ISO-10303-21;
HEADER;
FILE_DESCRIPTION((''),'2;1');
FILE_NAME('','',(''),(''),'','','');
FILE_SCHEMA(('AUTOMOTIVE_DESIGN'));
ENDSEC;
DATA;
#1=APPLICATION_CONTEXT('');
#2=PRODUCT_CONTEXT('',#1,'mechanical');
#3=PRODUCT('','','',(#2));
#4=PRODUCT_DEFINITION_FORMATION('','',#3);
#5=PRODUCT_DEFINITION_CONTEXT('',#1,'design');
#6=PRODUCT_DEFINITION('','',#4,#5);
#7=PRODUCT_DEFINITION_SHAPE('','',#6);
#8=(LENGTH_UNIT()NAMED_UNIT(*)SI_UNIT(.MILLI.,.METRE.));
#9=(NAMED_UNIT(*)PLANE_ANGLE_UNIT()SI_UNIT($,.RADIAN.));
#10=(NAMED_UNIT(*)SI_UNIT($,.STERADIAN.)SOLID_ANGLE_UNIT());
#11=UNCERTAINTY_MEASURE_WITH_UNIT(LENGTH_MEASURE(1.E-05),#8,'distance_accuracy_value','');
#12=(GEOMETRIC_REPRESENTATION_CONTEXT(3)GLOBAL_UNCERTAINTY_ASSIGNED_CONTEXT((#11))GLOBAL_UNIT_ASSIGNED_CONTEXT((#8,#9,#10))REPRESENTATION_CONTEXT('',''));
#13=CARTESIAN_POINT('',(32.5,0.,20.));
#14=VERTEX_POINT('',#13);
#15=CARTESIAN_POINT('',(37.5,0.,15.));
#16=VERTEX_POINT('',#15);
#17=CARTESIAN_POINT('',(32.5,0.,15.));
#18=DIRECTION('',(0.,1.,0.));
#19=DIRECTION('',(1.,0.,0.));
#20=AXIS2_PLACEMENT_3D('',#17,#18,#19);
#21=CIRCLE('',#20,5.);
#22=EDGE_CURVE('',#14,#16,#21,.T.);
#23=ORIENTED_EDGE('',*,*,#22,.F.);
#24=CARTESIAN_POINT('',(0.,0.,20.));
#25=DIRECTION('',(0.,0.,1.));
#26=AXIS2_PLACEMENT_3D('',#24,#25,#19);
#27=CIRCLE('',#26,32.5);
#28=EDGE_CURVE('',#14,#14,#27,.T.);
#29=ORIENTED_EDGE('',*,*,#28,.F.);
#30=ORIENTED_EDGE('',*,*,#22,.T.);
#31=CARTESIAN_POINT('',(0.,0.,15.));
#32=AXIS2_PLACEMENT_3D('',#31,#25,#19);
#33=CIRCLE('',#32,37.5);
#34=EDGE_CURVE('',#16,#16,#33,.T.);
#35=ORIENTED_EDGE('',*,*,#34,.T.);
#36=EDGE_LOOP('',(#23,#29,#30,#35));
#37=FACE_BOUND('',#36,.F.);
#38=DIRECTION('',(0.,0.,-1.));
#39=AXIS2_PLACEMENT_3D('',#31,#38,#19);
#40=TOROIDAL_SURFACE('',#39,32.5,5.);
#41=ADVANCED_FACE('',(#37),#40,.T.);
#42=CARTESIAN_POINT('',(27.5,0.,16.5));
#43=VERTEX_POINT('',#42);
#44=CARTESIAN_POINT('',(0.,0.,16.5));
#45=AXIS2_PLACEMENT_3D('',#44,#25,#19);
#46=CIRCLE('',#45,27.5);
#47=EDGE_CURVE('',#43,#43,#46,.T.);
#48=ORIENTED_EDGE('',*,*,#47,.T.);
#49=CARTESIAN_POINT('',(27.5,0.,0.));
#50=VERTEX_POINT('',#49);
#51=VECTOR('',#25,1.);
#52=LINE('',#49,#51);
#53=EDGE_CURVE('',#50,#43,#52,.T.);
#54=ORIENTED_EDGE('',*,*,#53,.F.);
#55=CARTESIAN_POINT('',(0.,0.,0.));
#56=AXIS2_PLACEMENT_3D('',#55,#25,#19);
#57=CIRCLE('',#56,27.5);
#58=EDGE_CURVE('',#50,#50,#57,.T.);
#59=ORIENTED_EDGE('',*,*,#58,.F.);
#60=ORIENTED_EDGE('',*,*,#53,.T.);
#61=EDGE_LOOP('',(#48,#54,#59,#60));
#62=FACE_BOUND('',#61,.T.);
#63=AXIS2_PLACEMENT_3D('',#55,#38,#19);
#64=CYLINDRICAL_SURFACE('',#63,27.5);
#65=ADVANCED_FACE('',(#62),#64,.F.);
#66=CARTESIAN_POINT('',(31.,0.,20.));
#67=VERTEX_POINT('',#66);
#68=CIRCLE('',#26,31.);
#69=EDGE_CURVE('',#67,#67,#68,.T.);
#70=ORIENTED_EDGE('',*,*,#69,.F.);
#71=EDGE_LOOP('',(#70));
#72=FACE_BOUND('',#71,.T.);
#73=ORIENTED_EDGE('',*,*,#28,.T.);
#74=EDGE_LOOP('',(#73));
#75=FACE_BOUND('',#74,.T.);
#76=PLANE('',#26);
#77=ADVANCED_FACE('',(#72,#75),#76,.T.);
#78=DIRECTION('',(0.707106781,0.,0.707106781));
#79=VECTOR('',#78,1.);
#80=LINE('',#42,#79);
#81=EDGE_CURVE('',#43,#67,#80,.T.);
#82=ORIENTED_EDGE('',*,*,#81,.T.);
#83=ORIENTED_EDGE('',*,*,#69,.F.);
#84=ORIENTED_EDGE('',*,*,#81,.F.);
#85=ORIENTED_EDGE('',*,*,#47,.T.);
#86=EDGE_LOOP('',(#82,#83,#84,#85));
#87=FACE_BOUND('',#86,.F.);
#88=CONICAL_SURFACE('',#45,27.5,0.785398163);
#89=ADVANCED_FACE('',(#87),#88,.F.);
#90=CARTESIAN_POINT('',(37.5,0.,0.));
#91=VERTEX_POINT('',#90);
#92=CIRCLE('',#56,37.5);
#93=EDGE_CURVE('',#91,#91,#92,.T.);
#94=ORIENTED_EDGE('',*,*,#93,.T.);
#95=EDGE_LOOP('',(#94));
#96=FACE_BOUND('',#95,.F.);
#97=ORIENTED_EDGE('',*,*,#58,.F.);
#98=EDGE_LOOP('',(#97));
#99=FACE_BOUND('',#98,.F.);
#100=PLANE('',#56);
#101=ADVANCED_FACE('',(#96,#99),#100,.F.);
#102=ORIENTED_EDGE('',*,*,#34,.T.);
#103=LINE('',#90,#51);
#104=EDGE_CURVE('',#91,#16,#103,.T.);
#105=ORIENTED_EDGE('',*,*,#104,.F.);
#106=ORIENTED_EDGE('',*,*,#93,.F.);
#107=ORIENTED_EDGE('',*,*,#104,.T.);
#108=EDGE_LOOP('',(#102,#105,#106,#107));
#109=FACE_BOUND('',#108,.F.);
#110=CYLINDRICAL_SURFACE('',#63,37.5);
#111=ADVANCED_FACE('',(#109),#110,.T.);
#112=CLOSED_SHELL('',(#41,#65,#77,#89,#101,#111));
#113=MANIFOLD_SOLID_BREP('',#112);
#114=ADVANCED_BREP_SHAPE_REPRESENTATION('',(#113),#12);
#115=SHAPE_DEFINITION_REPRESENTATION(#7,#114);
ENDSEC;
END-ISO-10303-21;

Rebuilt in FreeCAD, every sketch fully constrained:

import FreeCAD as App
import Part
import Sketcher

V = App.Vector
Q = App.Units.Quantity


def edges_at(feature, points):
    """Names of the edges that pass closest to the given points."""
    edges = feature.Shape.Edges
    near = lambda p: min(range(len(edges)), key=lambda i: edges[i].distToShape(Part.Vertex(*p))[0])
    return sorted({f"Edge{near(p) + 1}" for p in points})

doc = App.newDocument("Part")
body = doc.addObject("PartDesign::Body", "Body")

# Sketch on XY plane
sketch1 = body.newObject("Sketcher::SketchObject", "Sketch")
sketch1.AttachmentSupport = (doc.getObject("XY_Plane"), [""])
sketch1.MapMode = "FlatFace"
sketch1.addGeometry([
    Part.Circle(V(0, 0, 0), V(0, 0, 1), 37.5),
    Part.Circle(V(0, 0, 0), V(0, 0, 1), 27.5),
], False)
sketch1.addConstraint([
    Sketcher.Constraint("Coincident", 0, 3, -1, 1),
    Sketcher.Constraint("Coincident", 1, 3, -1, 1),
    Sketcher.Constraint("Diameter", 0, Q("75 mm")),
    Sketcher.Constraint("Diameter", 1, Q("55 mm")),
])
pad1 = body.newObject("PartDesign::Pad", "Pad")
pad1.Profile = sketch1
pad1.Length = 20
doc.recompute()

chamfer = body.newObject("PartDesign::Chamfer", "Chamfer")
chamfer.Base = (pad1, edges_at(pad1, [(-27.5, 0, 20)]))
chamfer.Size = 3.5
doc.recompute()

fillet = body.newObject("PartDesign::Fillet", "Fillet")
fillet.Base = (chamfer, edges_at(chamfer, [(-37.5, 0, 20)]))
fillet.Radius = 5

doc.recompute()
